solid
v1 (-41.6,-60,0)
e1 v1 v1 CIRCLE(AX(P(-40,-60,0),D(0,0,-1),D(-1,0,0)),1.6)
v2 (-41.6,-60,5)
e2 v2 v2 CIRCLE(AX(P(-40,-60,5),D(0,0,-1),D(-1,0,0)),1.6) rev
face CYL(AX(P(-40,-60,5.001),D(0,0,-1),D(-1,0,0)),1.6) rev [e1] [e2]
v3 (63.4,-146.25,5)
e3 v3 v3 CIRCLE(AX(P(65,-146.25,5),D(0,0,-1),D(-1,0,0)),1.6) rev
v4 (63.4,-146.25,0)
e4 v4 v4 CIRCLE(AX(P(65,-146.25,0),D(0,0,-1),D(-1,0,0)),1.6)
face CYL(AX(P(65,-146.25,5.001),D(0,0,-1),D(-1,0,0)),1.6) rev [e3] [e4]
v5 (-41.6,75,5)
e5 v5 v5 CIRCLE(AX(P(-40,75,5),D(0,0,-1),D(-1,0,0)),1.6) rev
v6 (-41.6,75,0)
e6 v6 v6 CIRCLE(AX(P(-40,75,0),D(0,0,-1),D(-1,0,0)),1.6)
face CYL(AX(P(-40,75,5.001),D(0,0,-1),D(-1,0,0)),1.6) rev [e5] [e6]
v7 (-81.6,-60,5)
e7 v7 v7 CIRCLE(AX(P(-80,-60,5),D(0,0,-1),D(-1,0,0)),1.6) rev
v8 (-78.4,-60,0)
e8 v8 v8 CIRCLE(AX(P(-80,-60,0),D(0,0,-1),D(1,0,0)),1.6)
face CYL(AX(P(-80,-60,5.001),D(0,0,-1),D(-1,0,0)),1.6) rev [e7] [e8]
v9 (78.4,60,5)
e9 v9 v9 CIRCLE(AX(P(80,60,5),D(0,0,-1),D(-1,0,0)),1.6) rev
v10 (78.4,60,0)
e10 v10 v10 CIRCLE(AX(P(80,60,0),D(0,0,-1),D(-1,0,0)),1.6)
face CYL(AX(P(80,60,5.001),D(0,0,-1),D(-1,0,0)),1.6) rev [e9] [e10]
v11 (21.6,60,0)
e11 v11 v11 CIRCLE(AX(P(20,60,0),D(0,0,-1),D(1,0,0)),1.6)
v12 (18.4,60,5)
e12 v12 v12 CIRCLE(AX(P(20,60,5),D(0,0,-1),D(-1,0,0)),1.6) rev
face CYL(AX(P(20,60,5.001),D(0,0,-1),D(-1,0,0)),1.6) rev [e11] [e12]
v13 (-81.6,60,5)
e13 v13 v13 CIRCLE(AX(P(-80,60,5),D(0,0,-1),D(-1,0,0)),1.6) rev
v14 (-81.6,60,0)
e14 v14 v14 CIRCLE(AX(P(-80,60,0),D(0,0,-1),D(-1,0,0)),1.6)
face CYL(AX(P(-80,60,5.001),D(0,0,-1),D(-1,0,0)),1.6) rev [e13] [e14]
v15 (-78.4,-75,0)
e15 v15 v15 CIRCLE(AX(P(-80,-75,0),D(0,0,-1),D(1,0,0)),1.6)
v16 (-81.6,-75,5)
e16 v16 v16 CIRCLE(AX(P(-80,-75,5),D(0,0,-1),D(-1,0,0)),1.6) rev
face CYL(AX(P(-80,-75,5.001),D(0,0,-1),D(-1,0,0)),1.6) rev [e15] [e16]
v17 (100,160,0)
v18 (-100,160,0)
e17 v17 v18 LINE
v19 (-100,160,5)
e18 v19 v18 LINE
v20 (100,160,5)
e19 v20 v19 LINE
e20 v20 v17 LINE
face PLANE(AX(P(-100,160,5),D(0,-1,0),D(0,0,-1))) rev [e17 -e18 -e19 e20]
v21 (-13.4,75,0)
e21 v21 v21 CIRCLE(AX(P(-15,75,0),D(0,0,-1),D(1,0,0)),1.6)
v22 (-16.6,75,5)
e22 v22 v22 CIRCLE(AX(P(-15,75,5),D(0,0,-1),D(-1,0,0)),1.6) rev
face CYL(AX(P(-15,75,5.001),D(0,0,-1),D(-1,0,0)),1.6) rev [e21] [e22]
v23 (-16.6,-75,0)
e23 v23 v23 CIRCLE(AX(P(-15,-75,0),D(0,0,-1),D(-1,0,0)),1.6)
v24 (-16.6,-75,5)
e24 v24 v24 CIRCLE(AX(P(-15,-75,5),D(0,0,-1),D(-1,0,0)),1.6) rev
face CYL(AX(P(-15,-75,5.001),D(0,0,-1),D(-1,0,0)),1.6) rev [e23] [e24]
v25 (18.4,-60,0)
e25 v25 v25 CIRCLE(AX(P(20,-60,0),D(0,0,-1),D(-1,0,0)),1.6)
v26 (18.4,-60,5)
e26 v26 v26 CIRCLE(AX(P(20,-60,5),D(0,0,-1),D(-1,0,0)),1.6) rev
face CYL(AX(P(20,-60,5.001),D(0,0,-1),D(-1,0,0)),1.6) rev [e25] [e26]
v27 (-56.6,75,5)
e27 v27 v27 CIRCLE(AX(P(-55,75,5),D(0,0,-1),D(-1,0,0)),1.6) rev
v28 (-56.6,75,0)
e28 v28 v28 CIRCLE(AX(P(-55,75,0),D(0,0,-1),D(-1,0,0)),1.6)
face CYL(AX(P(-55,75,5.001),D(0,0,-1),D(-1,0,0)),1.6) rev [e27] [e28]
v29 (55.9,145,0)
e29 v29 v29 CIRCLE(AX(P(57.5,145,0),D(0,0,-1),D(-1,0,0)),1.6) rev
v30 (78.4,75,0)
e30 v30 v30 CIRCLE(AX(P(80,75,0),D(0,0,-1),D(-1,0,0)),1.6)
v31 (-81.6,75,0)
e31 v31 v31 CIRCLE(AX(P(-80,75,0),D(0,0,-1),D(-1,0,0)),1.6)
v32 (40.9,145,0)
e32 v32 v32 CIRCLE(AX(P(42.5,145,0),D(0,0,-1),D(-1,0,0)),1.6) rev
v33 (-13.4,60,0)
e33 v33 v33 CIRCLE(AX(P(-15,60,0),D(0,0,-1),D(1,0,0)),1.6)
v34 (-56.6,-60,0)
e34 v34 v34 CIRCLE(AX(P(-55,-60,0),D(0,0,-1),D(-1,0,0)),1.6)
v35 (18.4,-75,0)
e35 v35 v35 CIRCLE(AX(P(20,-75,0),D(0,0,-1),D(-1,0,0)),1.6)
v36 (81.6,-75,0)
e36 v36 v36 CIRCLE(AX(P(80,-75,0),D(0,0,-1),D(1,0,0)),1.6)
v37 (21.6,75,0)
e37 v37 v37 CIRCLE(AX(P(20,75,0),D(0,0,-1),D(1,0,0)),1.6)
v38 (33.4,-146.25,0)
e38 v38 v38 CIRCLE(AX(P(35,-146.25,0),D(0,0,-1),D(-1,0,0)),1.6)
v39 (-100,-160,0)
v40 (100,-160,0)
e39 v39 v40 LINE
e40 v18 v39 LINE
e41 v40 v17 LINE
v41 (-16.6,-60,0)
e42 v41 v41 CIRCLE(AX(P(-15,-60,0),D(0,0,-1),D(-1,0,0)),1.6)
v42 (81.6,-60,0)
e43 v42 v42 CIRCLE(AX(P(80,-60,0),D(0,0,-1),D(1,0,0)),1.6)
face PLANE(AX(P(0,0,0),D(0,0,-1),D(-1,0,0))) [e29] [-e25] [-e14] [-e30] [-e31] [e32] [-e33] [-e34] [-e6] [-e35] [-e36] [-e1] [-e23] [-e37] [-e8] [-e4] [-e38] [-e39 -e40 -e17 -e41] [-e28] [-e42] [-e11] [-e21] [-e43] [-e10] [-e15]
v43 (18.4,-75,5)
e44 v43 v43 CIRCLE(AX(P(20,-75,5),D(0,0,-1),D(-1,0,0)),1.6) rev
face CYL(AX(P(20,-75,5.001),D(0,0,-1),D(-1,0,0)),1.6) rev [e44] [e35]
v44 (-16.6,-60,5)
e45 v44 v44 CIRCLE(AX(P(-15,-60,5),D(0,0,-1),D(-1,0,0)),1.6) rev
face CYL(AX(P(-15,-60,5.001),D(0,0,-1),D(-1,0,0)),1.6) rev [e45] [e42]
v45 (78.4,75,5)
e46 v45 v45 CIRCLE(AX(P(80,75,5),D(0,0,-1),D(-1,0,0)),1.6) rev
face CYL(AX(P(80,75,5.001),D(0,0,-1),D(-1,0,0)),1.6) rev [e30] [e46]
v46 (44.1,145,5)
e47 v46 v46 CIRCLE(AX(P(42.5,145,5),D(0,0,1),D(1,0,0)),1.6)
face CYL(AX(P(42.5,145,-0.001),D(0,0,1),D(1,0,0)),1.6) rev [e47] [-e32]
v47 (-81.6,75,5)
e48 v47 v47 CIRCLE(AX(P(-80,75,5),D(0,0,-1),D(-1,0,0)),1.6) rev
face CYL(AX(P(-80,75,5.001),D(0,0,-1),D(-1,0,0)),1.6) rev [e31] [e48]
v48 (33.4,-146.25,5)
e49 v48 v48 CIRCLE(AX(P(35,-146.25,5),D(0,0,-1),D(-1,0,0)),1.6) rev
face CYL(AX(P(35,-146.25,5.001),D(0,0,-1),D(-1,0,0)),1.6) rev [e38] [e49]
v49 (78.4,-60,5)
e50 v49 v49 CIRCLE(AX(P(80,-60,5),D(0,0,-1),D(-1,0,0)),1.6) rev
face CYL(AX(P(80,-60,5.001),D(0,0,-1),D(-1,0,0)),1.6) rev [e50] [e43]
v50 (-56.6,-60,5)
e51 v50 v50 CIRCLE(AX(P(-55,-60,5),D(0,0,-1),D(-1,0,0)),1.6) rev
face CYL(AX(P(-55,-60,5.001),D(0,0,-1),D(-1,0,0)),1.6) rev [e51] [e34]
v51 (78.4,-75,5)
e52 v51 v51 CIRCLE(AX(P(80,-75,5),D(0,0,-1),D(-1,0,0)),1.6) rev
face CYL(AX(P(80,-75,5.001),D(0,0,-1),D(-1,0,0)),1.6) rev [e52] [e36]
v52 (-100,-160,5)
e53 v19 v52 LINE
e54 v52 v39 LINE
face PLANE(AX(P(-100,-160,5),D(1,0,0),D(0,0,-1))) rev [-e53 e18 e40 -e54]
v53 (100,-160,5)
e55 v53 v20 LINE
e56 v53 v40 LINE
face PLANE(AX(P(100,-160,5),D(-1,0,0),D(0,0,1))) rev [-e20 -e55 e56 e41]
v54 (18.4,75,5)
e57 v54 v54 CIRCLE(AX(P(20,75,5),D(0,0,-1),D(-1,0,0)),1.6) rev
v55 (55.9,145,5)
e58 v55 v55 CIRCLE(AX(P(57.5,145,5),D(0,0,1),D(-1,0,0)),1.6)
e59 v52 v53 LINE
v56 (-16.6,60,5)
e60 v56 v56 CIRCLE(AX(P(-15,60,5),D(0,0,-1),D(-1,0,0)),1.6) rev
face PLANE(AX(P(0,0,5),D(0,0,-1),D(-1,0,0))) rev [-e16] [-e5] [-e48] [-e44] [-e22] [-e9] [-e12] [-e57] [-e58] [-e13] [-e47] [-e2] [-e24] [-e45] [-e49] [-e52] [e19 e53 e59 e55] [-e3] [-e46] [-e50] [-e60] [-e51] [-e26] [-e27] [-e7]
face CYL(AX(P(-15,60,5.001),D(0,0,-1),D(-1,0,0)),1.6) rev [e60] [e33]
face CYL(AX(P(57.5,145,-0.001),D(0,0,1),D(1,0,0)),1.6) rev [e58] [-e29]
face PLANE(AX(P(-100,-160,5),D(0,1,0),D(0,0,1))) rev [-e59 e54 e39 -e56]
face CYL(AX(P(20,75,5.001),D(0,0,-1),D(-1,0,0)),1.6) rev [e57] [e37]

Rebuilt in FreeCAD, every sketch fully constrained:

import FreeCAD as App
import Part
import Sketcher
from FreeCAD import Vector

doc = App.newDocument("Part")
body = doc.addObject("PartDesign::Body", "Body")

# Sketch on XY plane
sketch1 = body.newObject("Sketcher::SketchObject", "Sketch")
sketch1.AttachmentSupport = (doc.getObject("XY_Plane"), [""])
sketch1.MapMode = "FlatFace"
sketch1.addGeometry([
    Part.LineSegment(Vector(-100, 160, 0), Vector(-100, -160, 0)),
    Part.LineSegment(Vector(-100, -160, 0), Vector(100, -160, 0)),
    Part.LineSegment(Vector(100, -160, 0), Vector(100, 160, 0)),
    Part.LineSegment(Vector(100, 160, 0), Vector(-100, 160, 0)),
], False)
sketch1.addConstraint([
    Sketcher.Constraint("Coincident", 0, 2, 1, 1),
    Sketcher.Constraint("Coincident", 1, 2, 2, 1),
    Sketcher.Constraint("Coincident", 2, 2, 3, 1),
    Sketcher.Constraint("Coincident", 3, 2, 0, 1),
    Sketcher.Constraint("Vertical", 0),
    Sketcher.Constraint("Horizontal", 1),
    Sketcher.Constraint("Vertical", 2),
    Sketcher.Constraint("Horizontal", 3),
    Sketcher.Constraint("Symmetric", 0, 2, 2, 2, -1, 1),
    Sketcher.Constraint("DistanceX", 1, 1, 1, 2, 200.0),
    Sketcher.Constraint("DistanceY", 0, 2, 0, 1, 320.0),
])
pad1 = body.newObject("PartDesign::Pad", "Pad")
pad1.Profile = sketch1
pad1.Length = 5

# Sketch on XY plane
sketch2 = body.newObject("Sketcher::SketchObject", "Sketch001")
sketch2.AttachmentSupport = (doc.getObject("XY_Plane"), [""])
sketch2.MapMode = "FlatFace"
sketch2.addGeometry(Part.Circle(Vector(80, 75, 0), Vector(0, 0, 1), 1.6), False)
sketch2.addConstraint([
    Sketcher.Constraint("Diameter", 0, 3.2),
    Sketcher.Constraint("DistanceX", -1, 1, 0, 3, 80.0),
    Sketcher.Constraint("DistanceY", -1, 1, 0, 3, 75.0),
])
pocket1 = body.newObject("PartDesign::Pocket", "Pocket")
pocket1.Profile = sketch2
pocket1.Type = "UpToFirst"
pocket1.Reversed = True

# Sketch on XY plane
sketch3 = body.newObject("Sketcher::SketchObject", "Sketch002")
sketch3.AttachmentSupport = (doc.getObject("XY_Plane"), [""])
sketch3.MapMode = "FlatFace"
sketch3.addGeometry(Part.Circle(Vector(80, 60, 0), Vector(0, 0, 1), 1.6), False)
sketch3.addConstraint([
    Sketcher.Constraint("Diameter", 0, 3.2),
    Sketcher.Constraint("DistanceX", -1, 1, 0, 3, 80.0),
    Sketcher.Constraint("DistanceY", -1, 1, 0, 3, 60.0),
])
pocket2 = body.newObject("PartDesign::Pocket", "Pocket001")
pocket2.Profile = sketch3
pocket2.Type = "UpToFirst"
pocket2.Reversed = True

# Sketch on XY plane
sketch4 = body.newObject("Sketcher::SketchObject", "Sketch003")
sketch4.AttachmentSupport = (doc.getObject("XY_Plane"), [""])
sketch4.MapMode = "FlatFace"
sketch4.addGeometry(Part.Circle(Vector(80, -60, 0), Vector(0, 0, 1), 1.6), False)
sketch4.addConstraint([
    Sketcher.Constraint("Diameter", 0, 3.2),
    Sketcher.Constraint("DistanceX", -1, 1, 0, 3, 80.0),
    Sketcher.Constraint("DistanceY", 0, 3, -1, 1, 60.0),
])
pocket3 = body.newObject("PartDesign::Pocket", "Pocket002")
pocket3.Profile = sketch4
pocket3.Type = "UpToFirst"
pocket3.Reversed = True

# Sketch on XY plane
sketch5 = body.newObject("Sketcher::SketchObject", "Sketch004")
sketch5.AttachmentSupport = (doc.getObject("XY_Plane"), [""])
sketch5.MapMode = "FlatFace"
sketch5.addGeometry(Part.Circle(Vector(80, -75, 0), Vector(0, 0, 1), 1.6), False)
sketch5.addConstraint([
    Sketcher.Constraint("Diameter", 0, 3.2),
    Sketcher.Constraint("DistanceX", -1, 1, 0, 3, 80.0),
    Sketcher.Constraint("DistanceY", 0, 3, -1, 1, 75.0),
])
pocket4 = body.newObject("PartDesign::Pocket", "Pocket003")
pocket4.Profile = sketch5
pocket4.Type = "UpToFirst"
pocket4.Reversed = True

# Sketch on XY plane
sketch6 = body.newObject("Sketcher::SketchObject", "Sketch005")
sketch6.AttachmentSupport = (doc.getObject("XY_Plane"), [""])
sketch6.MapMode = "FlatFace"
sketch6.addGeometry(Part.Circle(Vector(20, -75, 0), Vector(0, 0, 1), 1.6), False)
sketch6.addConstraint([
    Sketcher.Constraint("Diameter", 0, 3.2),
    Sketcher.Constraint("DistanceX", -1, 1, 0, 3, 20.0),
    Sketcher.Constraint("DistanceY", 0, 3, -1, 1, 75.0),
])
pocket5 = body.newObject("PartDesign::Pocket", "Pocket004")
pocket5.Profile = sketch6
pocket5.Type = "UpToFirst"
pocket5.Reversed = True

# Sketch on XY plane
sketch7 = body.newObject("Sketcher::SketchObject", "Sketch006")
sketch7.AttachmentSupport = (doc.getObject("XY_Plane"), [""])
sketch7.MapMode = "FlatFace"
sketch7.addGeometry(Part.Circle(Vector(20, -60, 0), Vector(0, 0, 1), 1.6), False)
sketch7.addConstraint([
    Sketcher.Constraint("Diameter", 0, 3.2),
    Sketcher.Constraint("DistanceX", -1, 1, 0, 3, 20.0),
    Sketcher.Constraint("DistanceY", 0, 3, -1, 1, 60.0),
])
pocket6 = body.newObject("PartDesign::Pocket", "Pocket005")
pocket6.Profile = sketch7
pocket6.Type = "UpToFirst"
pocket6.Reversed = True

# Sketch on XY plane
sketch8 = body.newObject("Sketcher::SketchObject", "Sketch007")
sketch8.AttachmentSupport = (doc.getObject("XY_Plane"), [""])
sketch8.MapMode = "FlatFace"
sketch8.addGeometry(Part.Circle(Vector(20, 60, 0), Vector(0, 0, 1), 1.6), False)
sketch8.addConstraint([
    Sketcher.Constraint("Diameter", 0, 3.2),
    Sketcher.Constraint("DistanceX", -1, 1, 0, 3, 20.0),
    Sketcher.Constraint("DistanceY", -1, 1, 0, 3, 60.0),
])
pocket7 = body.newObject("PartDesign::Pocket", "Pocket006")
pocket7.Profile = sketch8
pocket7.Type = "UpToFirst"
pocket7.Reversed = True

# Sketch on XY plane
sketch9 = body.newObject("Sketcher::SketchObject", "Sketch008")
sketch9.AttachmentSupport = (doc.getObject("XY_Plane"), [""])
sketch9.MapMode = "FlatFace"
sketch9.addGeometry(Part.Circle(Vector(20, 75, 0), Vector(0, 0, 1), 1.6), False)
sketch9.addConstraint([
    Sketcher.Constraint("Diameter", 0, 3.2),
    Sketcher.Constraint("DistanceX", -1, 1, 0, 3, 20.0),
    Sketcher.Constraint("DistanceY", -1, 1, 0, 3, 75.0),
])
pocket8 = body.newObject("PartDesign::Pocket", "Pocket007")
pocket8.Profile = sketch9
pocket8.Type = "UpToFirst"
pocket8.Reversed = True

# Sketch on XY plane
sketch10 = body.newObject("Sketcher::SketchObject", "Sketch009")
sketch10.AttachmentSupport = (doc.getObject("XY_Plane"), [""])
sketch10.MapMode = "FlatFace"
sketch10.addGeometry(Part.Circle(Vector(-80, 75, 0), Vector(0, 0, 1), 1.6), False)
sketch10.addConstraint([
    Sketcher.Constraint("Diameter", 0, 3.2),
    Sketcher.Constraint("DistanceX", 0, 3, -1, 1, 80.0),
    Sketcher.Constraint("DistanceY", -1, 1, 0, 3, 75.0),
])
pocket9 = body.newObject("PartDesign::Pocket", "Pocket008")
pocket9.Profile = sketch10
pocket9.Type = "UpToFirst"
pocket9.Reversed = True

# Sketch on XY plane
sketch11 = body.newObject("Sketcher::SketchObject", "Sketch010")
sketch11.AttachmentSupport = (doc.getObject("XY_Plane"), [""])
sketch11.MapMode = "FlatFace"
sketch11.addGeometry(Part.Circle(Vector(-80, 60, 0), Vector(0, 0, 1), 1.6), False)
sketch11.addConstraint([
    Sketcher.Constraint("Diameter", 0, 3.2),
    Sketcher.Constraint("DistanceX", 0, 3, -1, 1, 80.0),
    Sketcher.Constraint("DistanceY", -1, 1, 0, 3, 60.0),
])
pocket10 = body.newObject("PartDesign::Pocket", "Pocket009")
pocket10.Profile = sketch11
pocket10.Type = "UpToFirst"
pocket10.Reversed = True

# Sketch on XY plane
sketch12 = body.newObject("Sketcher::SketchObject", "Sketch011")
sketch12.AttachmentSupport = (doc.getObject("XY_Plane"), [""])
sketch12.MapMode = "FlatFace"
sketch12.addGeometry(Part.Circle(Vector(-80, -60, 0), Vector(0, 0, 1), 1.6), False)
sketch12.addConstraint([
    Sketcher.Constraint("Diameter", 0, 3.2),
    Sketcher.Constraint("DistanceX", 0, 3, -1, 1, 80.0),
    Sketcher.Constraint("DistanceY", 0, 3, -1, 1, 60.0),
])
pocket11 = body.newObject("PartDesign::Pocket", "Pocket010")
pocket11.Profile = sketch12
pocket11.Type = "UpToFirst"
pocket11.Reversed = True

# Sketch on XY plane
sketch13 = body.newObject("Sketcher::SketchObject", "Sketch012")
sketch13.AttachmentSupport = (doc.getObject("XY_Plane"), [""])
sketch13.MapMode = "FlatFace"
sketch13.addGeometry(Part.Circle(Vector(-80, -75, 0), Vector(0, 0, 1), 1.6), False)
sketch13.addConstraint([
    Sketcher.Constraint("Diameter", 0, 3.2),
    Sketcher.Constraint("DistanceX", 0, 3, -1, 1, 80.0),
    Sketcher.Constraint("DistanceY", 0, 3, -1, 1, 75.0),
])
pocket12 = body.newObject("PartDesign::Pocket", "Pocket011")
pocket12.Profile = sketch13
pocket12.Type = "UpToFirst"
pocket12.Reversed = True

# Sketch on XY plane
sketch14 = body.newObject("Sketcher::SketchObject", "Sketch013")
sketch14.AttachmentSupport = (doc.getObject("XY_Plane"), [""])
sketch14.MapMode = "FlatFace"
sketch14.addGeometry(Part.Circle(Vector(-15, 60, 0), Vector(0, 0, 1), 1.6), False)
sketch14.addConstraint([
    Sketcher.Constraint("Diameter", 0, 3.2),
    Sketcher.Constraint("DistanceX", 0, 3, -1, 1, 15.0),
    Sketcher.Constraint("DistanceY", -1, 1, 0, 3, 60.0),
])
pocket13 = body.newObject("PartDesign::Pocket", "Pocket012")
pocket13.Profile = sketch14
pocket13.Type = "UpToFirst"
pocket13.Reversed = True

# Sketch on XY plane
sketch15 = body.newObject("Sketcher::SketchObject", "Sketch014")
sketch15.AttachmentSupport = (doc.getObject("XY_Plane"), [""])
sketch15.MapMode = "FlatFace"
sketch15.addGeometry(Part.Circle(Vector(-15, -75, 0), Vector(0, 0, 1), 1.6), False)
sketch15.addConstraint([
    Sketcher.Constraint("Diameter", 0, 3.2),
    Sketcher.Constraint("DistanceX", 0, 3, -1, 1, 15.0),
    Sketcher.Constraint("DistanceY", 0, 3, -1, 1, 75.0),
])
pocket14 = body.newObject("PartDesign::Pocket", "Pocket013")
pocket14.Profile = sketch15
pocket14.Type = "UpToFirst"
pocket14.Reversed = True

# Sketch on XY plane
sketch16 = body.newObject("Sketcher::SketchObject", "Sketch015")
sketch16.AttachmentSupport = (doc.getObject("XY_Plane"), [""])
sketch16.MapMode = "FlatFace"
sketch16.addGeometry(Part.Circle(Vector(-15, -60, 0), Vector(0, 0, 1), 1.6), False)
sketch16.addConstraint([
    Sketcher.Constraint("Diameter", 0, 3.2),
    Sketcher.Constraint("DistanceX", 0, 3, -1, 1, 15.0),
    Sketcher.Constraint("DistanceY", 0, 3, -1, 1, 60.0),
])
pocket15 = body.newObject("PartDesign::Pocket", "Pocket014")
pocket15.Profile = sketch16
pocket15.Type = "UpToFirst"
pocket15.Reversed = True

# Sketch on XY plane
sketch17 = body.newObject("Sketcher::SketchObject", "Sketch016")
sketch17.AttachmentSupport = (doc.getObject("XY_Plane"), [""])
sketch17.MapMode = "FlatFace"
sketch17.addGeometry(Part.Circle(Vector(-15, 75, 0), Vector(0, 0, 1), 1.6), False)
sketch17.addConstraint([
    Sketcher.Constraint("Diameter", 0, 3.2),
    Sketcher.Constraint("DistanceX", 0, 3, -1, 1, 15.0),
    Sketcher.Constraint("DistanceY", -1, 1, 0, 3, 75.0),
])
pocket16 = body.newObject("PartDesign::Pocket", "Pocket015")
pocket16.Profile = sketch17
pocket16.Type = "UpToFirst"
pocket16.Reversed = True

# Sketch on XY plane
sketch18 = body.newObject("Sketcher::SketchObject", "Sketch017")
sketch18.AttachmentSupport = (doc.getObject("XY_Plane"), [""])
sketch18.MapMode = "FlatFace"
sketch18.AttachmentOffset = App.Placement(Vector(0, 0, 5), App.Rotation())
sketch18.addGeometry(Part.Circle(Vector(42.5, 145, 0), Vector(0, 0, 1), 1.6), False)
sketch18.addConstraint([
    Sketcher.Constraint("Diameter", 0, 3.2),
    Sketcher.Constraint("DistanceY", -1, 1, 0, 3, 145.0),
    Sketcher.Constraint("DistanceX", -1, 1, 0, 3, 42.5),
])
pocket17 = body.newObject("PartDesign::Pocket", "Pocket016")
pocket17.Profile = sketch18
pocket17.Type = "UpToFirst"

# Sketch on XY plane
sketch19 = body.newObject("Sketcher::SketchObject", "Sketch018")
sketch19.AttachmentSupport = (doc.getObject("XY_Plane"), [""])
sketch19.MapMode = "FlatFace"
sketch19.AttachmentOffset = App.Placement(Vector(0, 0, 5), App.Rotation())
sketch19.addGeometry(Part.Circle(Vector(57.5, 145, 0), Vector(0, 0, 1), 1.6), False)
sketch19.addConstraint([
    Sketcher.Constraint("Diameter", 0, 3.2),
    Sketcher.Constraint("DistanceY", -1, 1, 0, 3, 145.0),
    Sketcher.Constraint("DistanceX", -1, 1, 0, 3, 57.5),
])
pocket18 = body.newObject("PartDesign::Pocket", "Pocket017")
pocket18.Profile = sketch19
pocket18.Type = "UpToFirst"

# Sketch on XY plane
sketch20 = body.newObject("Sketcher::SketchObject", "Sketch019")
sketch20.AttachmentSupport = (doc.getObject("XY_Plane"), [""])
sketch20.MapMode = "FlatFace"
sketch20.addGeometry(Part.Circle(Vector(-40, 75, 0), Vector(0, 0, 1), 1.6), False)
sketch20.addConstraint([
    Sketcher.Constraint("Diameter", 0, 3.2),
    Sketcher.Constraint("DistanceX", 0, 3, -1, 1, 40.0),
    Sketcher.Constraint("DistanceY", -1, 1, 0, 3, 75.0),
])
pocket19 = body.newObject("PartDesign::Pocket", "Pocket018")
pocket19.Profile = sketch20
pocket19.Type = "UpToFirst"
pocket19.Reversed = True

# Sketch on XY plane
sketch21 = body.newObject("Sketcher::SketchObject", "Sketch020")
sketch21.AttachmentSupport = (doc.getObject("XY_Plane"), [""])
sketch21.MapMode = "FlatFace"
sketch21.addGeometry(Part.Circle(Vector(-55, 75, 0), Vector(0, 0, 1), 1.6), False)
sketch21.addConstraint([
    Sketcher.Constraint("Diameter", 0, 3.2),
    Sketcher.Constraint("DistanceX", 0, 3, -1, 1, 55.0),
    Sketcher.Constraint("DistanceY", -1, 1, 0, 3, 75.0),
])
pocket20 = body.newObject("PartDesign::Pocket", "Pocket019")
pocket20.Profile = sketch21
pocket20.Type = "UpToFirst"
pocket20.Reversed = True

# Sketch on XY plane
sketch22 = body.newObject("Sketcher::SketchObject", "Sketch021")
sketch22.AttachmentSupport = (doc.getObject("XY_Plane"), [""])
sketch22.MapMode = "FlatFace"
sketch22.addGeometry(Part.Circle(Vector(-40, -60, 0), Vector(0, 0, 1), 1.6), False)
sketch22.addConstraint([
    Sketcher.Constraint("Diameter", 0, 3.2),
    Sketcher.Constraint("DistanceX", 0, 3, -1, 1, 40.0),
    Sketcher.Constraint("DistanceY", 0, 3, -1, 1, 60.0),
])
pocket21 = body.newObject("PartDesign::Pocket", "Pocket020")
pocket21.Profile = sketch22
pocket21.Type = "UpToFirst"
pocket21.Reversed = True

# Sketch on XY plane
sketch23 = body.newObject("Sketcher::SketchObject", "Sketch022")
sketch23.AttachmentSupport = (doc.getObject("XY_Plane"), [""])
sketch23.MapMode = "FlatFace"
sketch23.addGeometry(Part.Circle(Vector(-55, -60, 0), Vector(0, 0, 1), 1.6), False)
sketch23.addConstraint([
    Sketcher.Constraint("Diameter", 0, 3.2),
    Sketcher.Constraint("DistanceX", 0, 3, -1, 1, 55.0),
    Sketcher.Constraint("DistanceY", 0, 3, -1, 1, 60.0),
])
pocket22 = body.newObject("PartDesign::Pocket", "Pocket021")
pocket22.Profile = sketch23
pocket22.Type = "UpToFirst"
pocket22.Reversed = True

# Sketch on XY plane
sketch24 = body.newObject("Sketcher::SketchObject", "Sketch023")
sketch24.AttachmentSupport = (doc.getObject("XY_Plane"), [""])
sketch24.MapMode = "FlatFace"
sketch24.addGeometry(Part.Circle(Vector(65, -146.2, 0), Vector(0, 0, 1), 1.6), False)
sketch24.addConstraint([
    Sketcher.Constraint("Diameter", 0, 3.2),
    Sketcher.Constraint("DistanceX", -1, 1, 0, 3, 65.0),
    Sketcher.Constraint("DistanceY", 0, 3, -1, 1, 146.25),
])
pocket23 = body.newObject("PartDesign::Pocket", "Pocket022")
pocket23.Profile = sketch24
pocket23.Type = "UpToFirst"
pocket23.Reversed = True

# Sketch on XY plane
sketch25 = body.newObject("Sketcher::SketchObject", "Sketch024")
sketch25.AttachmentSupport = (doc.getObject("XY_Plane"), [""])
sketch25.MapMode = "FlatFace"
sketch25.addGeometry(Part.Circle(Vector(35, -146.2, 0), Vector(0, 0, 1), 1.6), False)
sketch25.addConstraint([
    Sketcher.Constraint("Diameter", 0, 3.2),
    Sketcher.Constraint("DistanceX", -1, 1, 0, 3, 35.0),
    Sketcher.Constraint("DistanceY", 0, 3, -1, 1, 146.25),
])
pocket24 = body.newObject("PartDesign::Pocket", "Pocket023")
pocket24.Profile = sketch25
pocket24.Type = "UpToFirst"
pocket24.Reversed = True

doc.recompute()
